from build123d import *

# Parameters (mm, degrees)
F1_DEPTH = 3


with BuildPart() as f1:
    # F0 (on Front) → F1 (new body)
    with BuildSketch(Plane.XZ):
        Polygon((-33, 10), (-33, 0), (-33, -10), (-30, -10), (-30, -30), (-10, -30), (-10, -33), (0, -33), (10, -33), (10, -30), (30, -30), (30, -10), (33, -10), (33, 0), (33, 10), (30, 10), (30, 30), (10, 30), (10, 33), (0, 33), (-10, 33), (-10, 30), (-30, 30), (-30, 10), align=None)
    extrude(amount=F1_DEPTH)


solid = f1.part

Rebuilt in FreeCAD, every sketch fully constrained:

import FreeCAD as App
import Part
import Sketcher

V = App.Vector
Q = App.Units.Quantity


def add_polygon(sketch, points):
    """Adds a closed chain of lines whose ends are joined by coincident constraints."""
    first, n = sketch.GeometryCount, len(points)
    for a, b in zip(points, points[1:] + points[:1]):
        sketch.addGeometry(Part.LineSegment(App.Vector(*a, 0), App.Vector(*b, 0)), False)
    for i in range(n):
        sketch.addConstraint(Sketcher.Constraint("Coincident", first + i, 2, first + (i + 1) % n, 1))

doc = App.newDocument("Part")
body = doc.addObject("PartDesign::Body", "Body")

# Sketch on XZ plane
sketch1 = body.newObject("Sketcher::SketchObject", "Sketch")
sketch1.AttachmentSupport = (doc.getObject("XZ_Plane"), [""])
sketch1.MapMode = "FlatFace"
add_polygon(sketch1, [(-33, 10), (-33, -10), (-30, -10), (-30, -30), (-10, -30), (-10, -33), (10, -33), (10, -30), (30, -30), (30, -10), (33, -10), (33, 10), (30, 10), (30, 30), (10, 30), (10, 33), (-10, 33), (-10, 30), (-30, 30), (-30, 10)])  # lines 0-19
sketch1.addConstraint([
    Sketcher.Constraint("Vertical", 0),
    Sketcher.Constraint("Horizontal", 1),
    Sketcher.Constraint("Vertical", 2),
    Sketcher.Constraint("Horizontal", 3),
    Sketcher.Constraint("Vertical", 4),
    Sketcher.Constraint("Horizontal", 5),
    Sketcher.Constraint("Vertical", 6),
    Sketcher.Constraint("Horizontal", 7),
    Sketcher.Constraint("Vertical", 8),
    Sketcher.Constraint("Horizontal", 9),
    Sketcher.Constraint("Vertical", 10),
    Sketcher.Constraint("Horizontal", 11),
    Sketcher.Constraint("Vertical", 12),
    Sketcher.Constraint("Horizontal", 13),
    Sketcher.Constraint("Vertical", 14),
    Sketcher.Constraint("Horizontal", 15),
    Sketcher.Constraint("Vertical", 16),
    Sketcher.Constraint("Horizontal", 17),
    Sketcher.Constraint("Vertical", 18),
    Sketcher.Constraint("Horizontal", 19),
    Sketcher.Constraint("Symmetric", 0, 2, 10, 2, -1, 1),
    Sketcher.Constraint("Symmetric", 2, 2, 12, 2, -1, 1),
    Sketcher.Constraint("Symmetric", 4, 2, 14, 2, -1, 1),
    Sketcher.Constraint("Symmetric", 6, 2, 16, 2, -1, 1),
    Sketcher.Constraint("Symmetric", 8, 2, 18, 2, -1, 1),
    Sketcher.Constraint("Symmetric", 3, 2, 6, 2, -2),
    Sketcher.Constraint("Symmetric", 1, 2, 8, 2, -2),
    Sketcher.Constraint("Equal", 3, 5),
    Sketcher.Constraint("Equal", 17, 0),
    Sketcher.Constraint("Equal", 0, 2),
    Sketcher.Constraint("Equal", 19, 4),
    Sketcher.Constraint("DistanceX", 1, 1, 1, 2, Q("3 mm")),
    Sketcher.Constraint("DistanceX", 3, 1, 3, 2, Q("20 mm")),
])
pad1 = body.newObject("PartDesign::Pad", "Pad")
pad1.Profile = sketch1
pad1.Length = 3

doc.recompute()
